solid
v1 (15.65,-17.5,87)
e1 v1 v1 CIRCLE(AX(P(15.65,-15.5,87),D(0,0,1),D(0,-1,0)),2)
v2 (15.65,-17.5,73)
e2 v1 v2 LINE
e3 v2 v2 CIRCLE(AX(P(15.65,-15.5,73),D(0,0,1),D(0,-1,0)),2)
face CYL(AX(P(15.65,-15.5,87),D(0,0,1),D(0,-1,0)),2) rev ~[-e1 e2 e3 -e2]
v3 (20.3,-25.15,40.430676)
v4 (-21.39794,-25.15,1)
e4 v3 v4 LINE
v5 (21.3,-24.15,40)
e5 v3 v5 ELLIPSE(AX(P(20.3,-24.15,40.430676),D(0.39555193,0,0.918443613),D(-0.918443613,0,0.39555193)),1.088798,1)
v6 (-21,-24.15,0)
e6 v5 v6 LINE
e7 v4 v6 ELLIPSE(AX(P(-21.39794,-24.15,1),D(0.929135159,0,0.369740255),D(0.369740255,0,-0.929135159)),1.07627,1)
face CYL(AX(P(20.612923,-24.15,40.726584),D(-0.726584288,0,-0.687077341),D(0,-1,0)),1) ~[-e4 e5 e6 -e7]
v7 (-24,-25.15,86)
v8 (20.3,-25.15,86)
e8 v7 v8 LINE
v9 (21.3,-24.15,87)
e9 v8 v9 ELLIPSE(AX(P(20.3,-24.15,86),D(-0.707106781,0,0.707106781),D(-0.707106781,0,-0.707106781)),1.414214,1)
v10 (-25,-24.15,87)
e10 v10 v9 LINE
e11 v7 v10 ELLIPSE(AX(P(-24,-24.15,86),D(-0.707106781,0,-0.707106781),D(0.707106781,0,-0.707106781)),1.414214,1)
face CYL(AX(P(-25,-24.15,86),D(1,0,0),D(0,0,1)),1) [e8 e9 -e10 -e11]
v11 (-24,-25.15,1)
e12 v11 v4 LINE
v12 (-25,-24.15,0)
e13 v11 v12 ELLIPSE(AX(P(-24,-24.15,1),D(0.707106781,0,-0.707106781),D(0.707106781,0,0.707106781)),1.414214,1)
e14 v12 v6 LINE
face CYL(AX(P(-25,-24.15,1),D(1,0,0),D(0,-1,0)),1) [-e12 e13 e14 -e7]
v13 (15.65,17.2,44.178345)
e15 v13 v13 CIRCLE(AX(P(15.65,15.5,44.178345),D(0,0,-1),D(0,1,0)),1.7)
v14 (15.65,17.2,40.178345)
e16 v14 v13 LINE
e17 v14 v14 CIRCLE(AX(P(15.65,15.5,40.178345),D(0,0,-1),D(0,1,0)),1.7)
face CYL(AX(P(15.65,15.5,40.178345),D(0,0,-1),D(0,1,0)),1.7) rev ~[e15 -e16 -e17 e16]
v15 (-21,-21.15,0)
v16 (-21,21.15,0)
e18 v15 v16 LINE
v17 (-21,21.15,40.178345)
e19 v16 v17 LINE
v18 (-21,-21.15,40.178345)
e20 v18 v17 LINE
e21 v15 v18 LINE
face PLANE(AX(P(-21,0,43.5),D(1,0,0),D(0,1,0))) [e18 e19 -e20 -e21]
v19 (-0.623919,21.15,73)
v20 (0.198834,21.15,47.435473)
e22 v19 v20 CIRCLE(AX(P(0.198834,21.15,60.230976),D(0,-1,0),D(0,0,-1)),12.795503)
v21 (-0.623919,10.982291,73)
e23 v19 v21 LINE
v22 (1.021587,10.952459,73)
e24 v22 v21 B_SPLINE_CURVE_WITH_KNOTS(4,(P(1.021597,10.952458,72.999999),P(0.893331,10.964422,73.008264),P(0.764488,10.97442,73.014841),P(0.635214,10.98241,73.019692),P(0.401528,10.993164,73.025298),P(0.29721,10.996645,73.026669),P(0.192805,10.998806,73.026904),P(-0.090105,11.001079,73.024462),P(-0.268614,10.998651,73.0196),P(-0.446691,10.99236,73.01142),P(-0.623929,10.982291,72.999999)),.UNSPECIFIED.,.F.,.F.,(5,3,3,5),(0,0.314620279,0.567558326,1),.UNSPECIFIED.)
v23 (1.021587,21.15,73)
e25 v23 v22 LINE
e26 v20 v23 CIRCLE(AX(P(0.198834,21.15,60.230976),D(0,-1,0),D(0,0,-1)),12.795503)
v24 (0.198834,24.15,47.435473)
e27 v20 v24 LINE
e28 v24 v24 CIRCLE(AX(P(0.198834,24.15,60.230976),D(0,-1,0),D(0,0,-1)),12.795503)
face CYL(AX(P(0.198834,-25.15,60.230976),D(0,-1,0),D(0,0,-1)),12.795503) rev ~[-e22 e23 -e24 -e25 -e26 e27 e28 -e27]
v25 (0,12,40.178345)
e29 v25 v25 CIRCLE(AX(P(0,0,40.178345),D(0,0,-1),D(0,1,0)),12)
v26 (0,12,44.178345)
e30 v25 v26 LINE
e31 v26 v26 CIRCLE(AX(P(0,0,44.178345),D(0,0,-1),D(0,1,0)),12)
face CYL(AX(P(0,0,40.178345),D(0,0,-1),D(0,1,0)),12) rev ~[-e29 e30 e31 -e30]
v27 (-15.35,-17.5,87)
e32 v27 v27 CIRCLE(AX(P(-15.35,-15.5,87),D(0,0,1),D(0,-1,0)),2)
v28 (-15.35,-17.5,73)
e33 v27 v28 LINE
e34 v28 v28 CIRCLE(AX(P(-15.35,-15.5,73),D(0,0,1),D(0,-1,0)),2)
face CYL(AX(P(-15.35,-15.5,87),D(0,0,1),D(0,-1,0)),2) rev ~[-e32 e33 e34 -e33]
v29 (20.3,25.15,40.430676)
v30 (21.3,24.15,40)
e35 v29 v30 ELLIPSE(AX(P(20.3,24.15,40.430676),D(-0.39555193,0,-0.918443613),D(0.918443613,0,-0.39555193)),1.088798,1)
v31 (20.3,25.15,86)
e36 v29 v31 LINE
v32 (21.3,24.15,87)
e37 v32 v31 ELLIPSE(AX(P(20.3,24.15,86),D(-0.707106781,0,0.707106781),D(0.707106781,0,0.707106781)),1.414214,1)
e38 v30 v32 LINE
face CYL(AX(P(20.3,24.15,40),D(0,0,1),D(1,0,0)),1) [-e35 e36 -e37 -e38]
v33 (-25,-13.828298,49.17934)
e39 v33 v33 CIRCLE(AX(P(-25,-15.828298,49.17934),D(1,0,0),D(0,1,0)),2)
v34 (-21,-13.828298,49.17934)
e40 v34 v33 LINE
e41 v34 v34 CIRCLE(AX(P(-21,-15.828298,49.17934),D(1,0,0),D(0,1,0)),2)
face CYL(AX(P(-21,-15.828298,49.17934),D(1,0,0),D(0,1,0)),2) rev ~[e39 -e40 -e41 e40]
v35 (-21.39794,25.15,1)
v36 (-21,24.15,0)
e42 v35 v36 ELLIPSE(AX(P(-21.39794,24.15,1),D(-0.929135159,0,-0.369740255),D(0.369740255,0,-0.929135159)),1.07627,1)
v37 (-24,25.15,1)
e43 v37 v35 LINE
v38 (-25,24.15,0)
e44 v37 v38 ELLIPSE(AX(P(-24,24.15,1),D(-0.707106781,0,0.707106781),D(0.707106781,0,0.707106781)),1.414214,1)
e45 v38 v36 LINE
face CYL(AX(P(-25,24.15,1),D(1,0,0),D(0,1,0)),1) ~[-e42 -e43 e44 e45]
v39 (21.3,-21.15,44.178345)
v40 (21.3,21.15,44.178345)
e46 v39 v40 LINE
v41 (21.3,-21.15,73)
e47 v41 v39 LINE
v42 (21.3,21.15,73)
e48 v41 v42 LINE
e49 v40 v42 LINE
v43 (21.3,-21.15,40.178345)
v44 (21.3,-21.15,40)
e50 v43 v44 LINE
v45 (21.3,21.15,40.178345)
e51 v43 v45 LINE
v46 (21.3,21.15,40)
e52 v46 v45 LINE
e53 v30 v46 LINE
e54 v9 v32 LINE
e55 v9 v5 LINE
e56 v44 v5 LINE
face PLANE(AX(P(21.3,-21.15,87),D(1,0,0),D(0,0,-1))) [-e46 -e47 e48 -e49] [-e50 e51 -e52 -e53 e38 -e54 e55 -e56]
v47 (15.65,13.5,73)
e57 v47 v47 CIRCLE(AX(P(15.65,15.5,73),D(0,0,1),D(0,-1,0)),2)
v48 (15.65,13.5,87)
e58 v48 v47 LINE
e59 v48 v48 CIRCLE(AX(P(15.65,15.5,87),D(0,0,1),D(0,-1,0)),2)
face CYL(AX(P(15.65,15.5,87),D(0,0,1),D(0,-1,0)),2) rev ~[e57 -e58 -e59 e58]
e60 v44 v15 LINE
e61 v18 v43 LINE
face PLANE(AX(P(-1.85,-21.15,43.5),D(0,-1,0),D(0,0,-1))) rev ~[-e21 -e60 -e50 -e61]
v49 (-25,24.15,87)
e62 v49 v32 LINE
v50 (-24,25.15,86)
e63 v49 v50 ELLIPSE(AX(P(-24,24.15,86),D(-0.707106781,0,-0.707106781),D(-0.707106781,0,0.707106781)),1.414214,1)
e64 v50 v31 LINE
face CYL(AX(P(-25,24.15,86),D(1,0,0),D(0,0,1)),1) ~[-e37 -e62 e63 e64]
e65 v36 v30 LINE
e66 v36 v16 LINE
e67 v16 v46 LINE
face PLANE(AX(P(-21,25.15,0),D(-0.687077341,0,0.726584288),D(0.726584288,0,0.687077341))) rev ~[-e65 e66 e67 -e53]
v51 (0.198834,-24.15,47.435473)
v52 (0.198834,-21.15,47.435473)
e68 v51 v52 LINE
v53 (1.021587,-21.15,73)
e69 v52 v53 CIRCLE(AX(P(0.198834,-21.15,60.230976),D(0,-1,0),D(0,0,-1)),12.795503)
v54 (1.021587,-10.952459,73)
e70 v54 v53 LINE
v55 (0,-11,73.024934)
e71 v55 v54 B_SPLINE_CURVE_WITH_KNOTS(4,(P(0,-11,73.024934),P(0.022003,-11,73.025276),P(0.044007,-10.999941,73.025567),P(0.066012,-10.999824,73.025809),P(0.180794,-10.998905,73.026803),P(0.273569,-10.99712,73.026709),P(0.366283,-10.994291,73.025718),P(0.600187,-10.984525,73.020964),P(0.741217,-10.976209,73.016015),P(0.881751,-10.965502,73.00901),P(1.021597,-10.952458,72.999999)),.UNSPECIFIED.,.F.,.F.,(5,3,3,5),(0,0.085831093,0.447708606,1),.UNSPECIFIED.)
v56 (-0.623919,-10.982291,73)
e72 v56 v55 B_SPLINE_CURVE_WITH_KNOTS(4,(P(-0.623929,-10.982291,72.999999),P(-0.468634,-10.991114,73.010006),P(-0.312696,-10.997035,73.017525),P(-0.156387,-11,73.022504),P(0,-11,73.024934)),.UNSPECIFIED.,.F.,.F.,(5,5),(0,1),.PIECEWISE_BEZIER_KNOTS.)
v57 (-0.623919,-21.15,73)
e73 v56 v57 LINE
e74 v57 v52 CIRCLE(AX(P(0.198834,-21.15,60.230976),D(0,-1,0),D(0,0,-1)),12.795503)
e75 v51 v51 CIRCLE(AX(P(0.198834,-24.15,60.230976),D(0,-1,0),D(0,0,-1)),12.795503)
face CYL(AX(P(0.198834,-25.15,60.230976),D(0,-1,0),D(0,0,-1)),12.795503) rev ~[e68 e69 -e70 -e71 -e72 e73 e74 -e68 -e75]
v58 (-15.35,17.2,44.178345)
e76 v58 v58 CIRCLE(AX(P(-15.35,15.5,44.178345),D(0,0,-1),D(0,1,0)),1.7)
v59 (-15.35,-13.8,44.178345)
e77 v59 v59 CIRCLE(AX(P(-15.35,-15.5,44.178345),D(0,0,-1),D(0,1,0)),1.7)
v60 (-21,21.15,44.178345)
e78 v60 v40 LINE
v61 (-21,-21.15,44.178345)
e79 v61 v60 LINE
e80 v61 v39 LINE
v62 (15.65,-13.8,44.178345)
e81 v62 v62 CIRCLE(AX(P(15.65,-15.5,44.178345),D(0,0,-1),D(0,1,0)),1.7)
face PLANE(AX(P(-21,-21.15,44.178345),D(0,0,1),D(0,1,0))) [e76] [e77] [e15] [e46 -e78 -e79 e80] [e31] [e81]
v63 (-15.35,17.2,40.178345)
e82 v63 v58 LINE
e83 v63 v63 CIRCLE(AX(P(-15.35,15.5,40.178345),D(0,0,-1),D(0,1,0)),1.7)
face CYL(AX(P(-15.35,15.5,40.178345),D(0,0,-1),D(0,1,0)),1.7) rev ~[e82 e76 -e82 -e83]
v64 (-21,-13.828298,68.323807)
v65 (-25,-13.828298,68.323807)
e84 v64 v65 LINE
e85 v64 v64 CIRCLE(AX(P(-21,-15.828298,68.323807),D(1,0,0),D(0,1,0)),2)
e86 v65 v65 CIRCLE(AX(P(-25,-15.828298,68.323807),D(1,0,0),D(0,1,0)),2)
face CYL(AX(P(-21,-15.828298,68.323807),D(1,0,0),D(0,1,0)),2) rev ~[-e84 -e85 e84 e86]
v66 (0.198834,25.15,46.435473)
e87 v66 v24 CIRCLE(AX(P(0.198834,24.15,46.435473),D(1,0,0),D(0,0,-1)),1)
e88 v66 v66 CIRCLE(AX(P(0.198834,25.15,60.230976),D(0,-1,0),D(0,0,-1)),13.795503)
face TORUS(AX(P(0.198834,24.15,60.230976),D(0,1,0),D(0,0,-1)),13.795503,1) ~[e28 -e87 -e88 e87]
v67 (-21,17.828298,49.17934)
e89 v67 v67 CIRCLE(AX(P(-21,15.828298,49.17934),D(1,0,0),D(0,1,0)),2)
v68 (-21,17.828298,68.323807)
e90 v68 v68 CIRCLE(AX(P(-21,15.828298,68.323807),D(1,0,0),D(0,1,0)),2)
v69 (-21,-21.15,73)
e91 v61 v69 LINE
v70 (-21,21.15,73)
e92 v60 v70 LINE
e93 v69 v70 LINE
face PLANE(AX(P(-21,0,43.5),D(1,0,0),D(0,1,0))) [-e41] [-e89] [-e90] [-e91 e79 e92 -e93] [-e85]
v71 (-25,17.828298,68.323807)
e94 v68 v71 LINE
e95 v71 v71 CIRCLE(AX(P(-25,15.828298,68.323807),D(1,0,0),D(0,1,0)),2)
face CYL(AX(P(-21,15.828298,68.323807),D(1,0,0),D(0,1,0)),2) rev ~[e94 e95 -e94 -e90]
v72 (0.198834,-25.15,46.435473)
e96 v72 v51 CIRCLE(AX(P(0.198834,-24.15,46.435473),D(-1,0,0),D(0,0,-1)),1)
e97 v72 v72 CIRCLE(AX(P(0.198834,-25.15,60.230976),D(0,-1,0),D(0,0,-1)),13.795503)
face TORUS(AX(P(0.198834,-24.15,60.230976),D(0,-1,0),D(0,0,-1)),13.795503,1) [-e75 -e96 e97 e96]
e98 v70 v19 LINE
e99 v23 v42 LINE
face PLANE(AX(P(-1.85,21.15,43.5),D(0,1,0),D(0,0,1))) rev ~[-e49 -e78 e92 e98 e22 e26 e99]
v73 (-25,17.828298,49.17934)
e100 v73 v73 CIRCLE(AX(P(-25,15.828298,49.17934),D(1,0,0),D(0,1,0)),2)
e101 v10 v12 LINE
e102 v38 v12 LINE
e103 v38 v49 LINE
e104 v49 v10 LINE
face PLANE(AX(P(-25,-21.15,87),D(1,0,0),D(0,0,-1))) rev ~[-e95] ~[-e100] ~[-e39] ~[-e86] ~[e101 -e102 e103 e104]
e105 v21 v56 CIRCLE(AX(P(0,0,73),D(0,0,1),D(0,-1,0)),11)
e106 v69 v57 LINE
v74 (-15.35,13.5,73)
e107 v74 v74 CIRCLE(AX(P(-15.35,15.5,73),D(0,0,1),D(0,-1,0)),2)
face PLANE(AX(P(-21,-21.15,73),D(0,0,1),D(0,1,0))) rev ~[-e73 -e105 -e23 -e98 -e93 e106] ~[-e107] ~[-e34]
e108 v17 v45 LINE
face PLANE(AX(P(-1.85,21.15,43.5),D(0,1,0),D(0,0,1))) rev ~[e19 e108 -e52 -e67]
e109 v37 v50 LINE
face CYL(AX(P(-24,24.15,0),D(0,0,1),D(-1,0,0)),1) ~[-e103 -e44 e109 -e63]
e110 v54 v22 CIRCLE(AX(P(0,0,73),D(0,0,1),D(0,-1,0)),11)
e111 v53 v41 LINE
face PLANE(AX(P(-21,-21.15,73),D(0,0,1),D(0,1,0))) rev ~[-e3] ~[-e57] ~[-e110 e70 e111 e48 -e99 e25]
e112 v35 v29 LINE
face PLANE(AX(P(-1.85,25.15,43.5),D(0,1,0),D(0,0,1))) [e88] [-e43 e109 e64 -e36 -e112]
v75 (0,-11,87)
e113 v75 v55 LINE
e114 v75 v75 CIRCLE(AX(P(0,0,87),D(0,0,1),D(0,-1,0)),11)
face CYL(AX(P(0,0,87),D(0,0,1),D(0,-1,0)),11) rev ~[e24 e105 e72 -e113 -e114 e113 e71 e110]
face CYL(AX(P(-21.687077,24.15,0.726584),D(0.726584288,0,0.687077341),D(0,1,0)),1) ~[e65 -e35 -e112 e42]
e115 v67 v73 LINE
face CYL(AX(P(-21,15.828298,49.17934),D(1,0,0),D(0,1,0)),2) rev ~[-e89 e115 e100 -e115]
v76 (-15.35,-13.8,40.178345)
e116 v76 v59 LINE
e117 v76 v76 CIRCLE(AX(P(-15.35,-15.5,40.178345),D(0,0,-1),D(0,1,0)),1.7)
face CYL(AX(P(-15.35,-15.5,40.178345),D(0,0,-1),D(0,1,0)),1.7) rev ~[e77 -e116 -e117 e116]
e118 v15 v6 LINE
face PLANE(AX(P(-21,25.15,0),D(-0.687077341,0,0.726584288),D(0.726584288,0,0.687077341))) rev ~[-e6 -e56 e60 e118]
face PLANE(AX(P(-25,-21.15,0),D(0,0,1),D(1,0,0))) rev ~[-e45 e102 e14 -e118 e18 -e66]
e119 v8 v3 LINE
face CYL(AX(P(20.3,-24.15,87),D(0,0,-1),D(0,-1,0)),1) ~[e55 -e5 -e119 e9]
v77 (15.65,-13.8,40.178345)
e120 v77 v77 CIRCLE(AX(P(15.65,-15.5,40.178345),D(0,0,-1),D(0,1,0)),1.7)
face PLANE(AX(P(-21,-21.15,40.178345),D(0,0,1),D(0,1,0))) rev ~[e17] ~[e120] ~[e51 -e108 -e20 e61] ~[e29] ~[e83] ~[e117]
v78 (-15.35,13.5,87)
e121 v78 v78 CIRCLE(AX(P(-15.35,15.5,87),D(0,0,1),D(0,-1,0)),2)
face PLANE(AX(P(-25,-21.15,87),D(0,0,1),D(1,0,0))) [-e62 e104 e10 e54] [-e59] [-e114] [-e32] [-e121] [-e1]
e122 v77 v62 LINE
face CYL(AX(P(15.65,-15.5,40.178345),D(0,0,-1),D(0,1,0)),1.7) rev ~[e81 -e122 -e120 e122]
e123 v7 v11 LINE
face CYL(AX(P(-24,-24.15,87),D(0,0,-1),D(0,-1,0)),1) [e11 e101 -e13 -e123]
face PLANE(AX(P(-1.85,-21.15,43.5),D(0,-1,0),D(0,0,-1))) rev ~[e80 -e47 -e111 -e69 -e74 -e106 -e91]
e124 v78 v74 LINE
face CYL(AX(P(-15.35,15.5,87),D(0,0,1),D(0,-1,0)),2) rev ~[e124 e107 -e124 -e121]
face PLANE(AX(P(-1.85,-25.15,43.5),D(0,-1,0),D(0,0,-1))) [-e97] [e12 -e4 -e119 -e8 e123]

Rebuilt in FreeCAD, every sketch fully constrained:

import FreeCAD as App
import Part
import Sketcher

V = App.Vector
Q = App.Units.Quantity


def edges_at(feature, points):
    """Names of the edges that pass closest to the given points."""
    edges = feature.Shape.Edges
    near = lambda p: min(range(len(edges)), key=lambda i: edges[i].distToShape(Part.Vertex(*p))[0])
    return sorted({f"Edge{near(p) + 1}" for p in points})


def add_polygon(sketch, points):
    """Adds a closed chain of lines whose ends are joined by coincident constraints."""
    first, n = sketch.GeometryCount, len(points)
    for a, b in zip(points, points[1:] + points[:1]):
        sketch.addGeometry(Part.LineSegment(App.Vector(*a, 0), App.Vector(*b, 0)), False)
    for i in range(n):
        sketch.addConstraint(Sketcher.Constraint("Coincident", first + i, 2, first + (i + 1) % n, 1))

doc = App.newDocument("Part")
body = doc.addObject("PartDesign::Body", "Body")

sketch1 = body.newObject("Sketcher::SketchObject", "Sketch")
sketch1.AttachmentSupport = (doc.getObject("YZ_Plane"), [""])
sketch1.MapMode = "FlatFace"
add_polygon(sketch1, [(-21, 87), (-21, 0), (21, 0), (21, 87)])
sketch1.addConstraint([
    Sketcher.Constraint("Vertical", 0),
    Sketcher.Constraint("Horizontal", 1),
    Sketcher.Constraint("Vertical", 2),
    Sketcher.Constraint("Horizontal", 3),
    Sketcher.Constraint("Symmetric", 0, 2, 1, 2, -1, 1),
    Sketcher.Constraint("DistanceY", 0, 2, 0, 1, Q("87 mm")),
    Sketcher.Constraint("DistanceX", 1, 1, 1, 2, Q("42.3 mm")),
])
pad1 = body.newObject("PartDesign::Pad", "Pad")
pad1.Profile = sketch1
pad1.Length = 4

sketch2 = body.newObject("Sketcher::SketchObject", "Sketch001")
sketch2.AttachmentSupport = (doc.getObject("YZ_Plane"), [""])
sketch2.MapMode = "FlatFace"
sketch2.AttachmentOffset = App.Placement(V(0, 0, 4), App.Rotation())
add_polygon(sketch2, [(-21.1, 44.2), (-21.1, 40.2), (21.1, 40.2), (21.1, 44.2)])
add_polygon(sketch2, [(-21.1, 87), (-21.1, 73), (21.1, 73), (21.1, 87)])
sketch2.addConstraint([
    Sketcher.Constraint("Vertical", 0),
    Sketcher.Constraint("Horizontal", 1),
    Sketcher.Constraint("Vertical", 2),
    Sketcher.Constraint("Horizontal", 3),
    Sketcher.Constraint("Vertical", 4),
    Sketcher.Constraint("Horizontal", 5),
    Sketcher.Constraint("Vertical", 6),
    Sketcher.Constraint("Horizontal", 7),
    Sketcher.Constraint("Vertical", 3, 2, 4, 2),
    Sketcher.Constraint("Vertical", 2, 2, 5, 2),
    Sketcher.Constraint("DistanceY", 0, 2, 0, 1, Q("4 mm")),
    Sketcher.Constraint("DistanceY", 4, 2, 4, 1, Q("14 mm")),
    Sketcher.Constraint("DistanceX", 1, 1, 1, 2, Q("42.3 mm")),
    Sketcher.Constraint("DistanceY", -1, 1, 4, 2, Q("73 mm")),
    Sketcher.Constraint("DistanceX", 0, 2, -1, 1, Q("21.15 mm")),
    Sketcher.Constraint("DistanceY", -1, 1, 0, 2, Q("40.178345 mm")),
])
pad2 = body.newObject("PartDesign::Pad", "Pad001")
pad2.Profile = sketch2
pad2.Length = 42.3

sketch3 = body.newObject("Sketcher::SketchObject", "Sketch002")
sketch3.AttachmentSupport = (doc.getObject("XY_Plane"), [""])
sketch3.MapMode = "FlatFace"
sketch3.AttachmentOffset = App.Placement(V(0, 0, 87), App.Rotation())
sketch3.addGeometry(Part.Circle(V(25, 0, 0), V(0, 0, 1), 11), False)
sketch3.addConstraint([
    Sketcher.Constraint("PointOnObject", 0, 3, -1),
    Sketcher.Constraint("Diameter", 0, Q("22 mm")),
    Sketcher.Constraint("DistanceX", -1, 1, 0, 3, Q("25 mm")),
])
pocket1 = body.newObject("PartDesign::Pocket", "Pocket")
pocket1.Profile = sketch3
pocket1.Length = 14

sketch4 = body.newObject("Sketcher::SketchObject", "Sketch003")
sketch4.AttachmentSupport = (doc.getObject("XY_Plane"), [""])
sketch4.MapMode = "FlatFace"
sketch4.AttachmentOffset = App.Placement(V(0, 0, 40.178345), App.Rotation())
sketch4.addGeometry([
    Part.Circle(V(40.6, -15.5, 0), V(0, 0, 1), 1.7),
    Part.Circle(V(40.6, 15.5, 0), V(0, 0, 1), 1.7),
    Part.Circle(V(9.7, 15.5, 0), V(0, 0, 1), 1.7),
    Part.Circle(V(9.7, -15.5, 0), V(0, 0, 1), 1.7),
    Part.Circle(V(25, 0, 0), V(0, 0, 1), 12),
], False)
sketch4.addConstraint([
    Sketcher.Constraint("Equal", 0, 1),
    Sketcher.Constraint("Equal", 1, 2),
    Sketcher.Constraint("Equal", 2, 3),
    Sketcher.Constraint("Symmetric", 0, 3, 1, 3, -1),
    Sketcher.Constraint("Symmetric", 2, 3, 3, 3, -1),
    Sketcher.Constraint("PointOnObject", 4, 3, -1),
    Sketcher.Constraint("Horizontal", 1, 3, 2, 3),
    Sketcher.Constraint("Diameter", 4, Q("24 mm")),
    Sketcher.Constraint("Diameter", 0, Q("3.4 mm")),
    Sketcher.Constraint("DistanceX", -1, 1, 4, 3, Q("25 mm")),
    Sketcher.Constraint("DistanceY", 0, 3, 1, 3, Q("31 mm")),
    Sketcher.Constraint("DistanceX", 2, 3, 1, 3, Q("31 mm")),
    Sketcher.Constraint("DistanceX", -1, 1, 0, 3, Q("40.65 mm")),
])
pocket2 = body.newObject("PartDesign::Pocket", "Pocket001")
pocket2.Profile = sketch4
pocket2.Length = 5
pocket2.Reversed = True

sketch5 = body.newObject("Sketcher::SketchObject", "Sketch004")
sketch5.AttachmentSupport = (doc.getObject("XZ_Plane"), [""])
sketch5.MapMode = "FlatFace"
sketch5.AttachmentOffset = App.Placement(V(0, 0, -21.15), App.Rotation())
add_polygon(sketch5, [(46, 0), (0, 0), (0, 87), (46, 87)])
sketch5.addConstraint([
    Sketcher.Constraint("Horizontal", 0),
    Sketcher.Constraint("Vertical", 1),
    Sketcher.Constraint("Horizontal", 2),
    Sketcher.Constraint("Vertical", 3),
    Sketcher.Constraint("Coincident", 0, 2, -1, 1),
    Sketcher.Constraint("DistanceY", 1, 1, 1, 2, Q("87 mm")),
    Sketcher.Constraint("DistanceX", 0, 2, 0, 1, Q("46.3 mm")),
])
pad3 = body.newObject("PartDesign::Pad", "Pad002")
pad3.Profile = sketch5
pad3.Length = 4
pad3.Reversed = True

sketch6 = body.newObject("Sketcher::SketchObject", "Sketch005")
sketch6.AttachmentSupport = (doc.getObject("XZ_Plane"), [""])
sketch6.MapMode = "FlatFace"
sketch6.AttachmentOffset = App.Placement(V(0, 0, 21.15), App.Rotation())
add_polygon(sketch6, [(46, 87), (0, 87), (0, 0), (46, 0)])
sketch6.addConstraint([
    Sketcher.Constraint("Horizontal", 0),
    Sketcher.Constraint("Vertical", 1),
    Sketcher.Constraint("Horizontal", 2),
    Sketcher.Constraint("Vertical", 3),
    Sketcher.Constraint("Coincident", 1, 2, -1, 1),
    Sketcher.Constraint("DistanceY", 1, 2, 1, 1, Q("87 mm")),
    Sketcher.Constraint("DistanceX", 0, 2, 0, 1, Q("46.3 mm")),
])
pad4 = body.newObject("PartDesign::Pad", "Pad003")
pad4.Profile = sketch6
pad4.Length = 4

sketch7 = body.newObject("Sketcher::SketchObject", "Sketch006")
sketch7.AttachmentSupport = (doc.getObject("XY_Plane"), [""])
sketch7.MapMode = "FlatFace"
sketch7.AttachmentOffset = App.Placement(V(0, 0, 87), App.Rotation())
sketch7.addGeometry([
    Part.Circle(V(40.6, 15.5, 0), V(0, 0, 1), 2),
    Part.Circle(V(40.6, -15.5, 0), V(0, 0, 1), 2),
    Part.Circle(V(9.7, -15.5, 0), V(0, 0, 1), 2),
    Part.Circle(V(9.7, 15.5, 0), V(0, 0, 1), 2),
], False)
sketch7.addConstraint([
    Sketcher.Constraint("Equal", 0, 1),
    Sketcher.Constraint("Equal", 1, 2),
    Sketcher.Constraint("Equal", 2, 3),
    Sketcher.Constraint("Symmetric", 0, 3, 1, 3, -1),
    Sketcher.Constraint("Symmetric", 2, 3, 3, 3, -1),
    Sketcher.Constraint("Horizontal", 1, 3, 2, 3),
    Sketcher.Constraint("Diameter", 0, Q("4 mm")),
    Sketcher.Constraint("DistanceY", 1, 3, 0, 3, Q("31 mm")),
    Sketcher.Constraint("DistanceX", 2, 3, 1, 3, Q("31 mm")),
    Sketcher.Constraint("DistanceX", -1, 1, 0, 3, Q("40.65 mm")),
])
pocket3 = body.newObject("PartDesign::Pocket", "Pocket002")
pocket3.Profile = sketch7
pocket3.Length = 14

sketch8 = body.newObject("Sketcher::SketchObject", "Sketch007")
sketch8.AttachmentSupport = (doc.getObject("XZ_Plane"), [""])
sketch8.MapMode = "FlatFace"
sketch8.AttachmentOffset = App.Placement(V(0, 0, -25.15), App.Rotation())
add_polygon(sketch8, [(4, 0), (46, 40), (46, 0)])
sketch8.addConstraint([
    Sketcher.Constraint("Vertical", 1),
    Sketcher.Constraint("Horizontal", 2),
    Sketcher.Constraint("PointOnObject", 1, 2, -1),
    Sketcher.Constraint("DistanceY", 1, 2, 1, 1, Q("40 mm")),
    Sketcher.Constraint("DistanceX", 2, 2, 2, 1, Q("42.3 mm")),
    Sketcher.Constraint("DistanceX", -1, 1, 2, 2, Q("4 mm")),
])
pocket4 = body.newObject("PartDesign::Pocket", "Pocket003")
pocket4.Profile = sketch8
pocket4.Length = 51
pocket4.Reversed = True

sketch9 = body.newObject("Sketcher::SketchObject", "Sketch008")
sketch9.AttachmentSupport = (doc.getObject("XZ_Plane"), [""])
sketch9.MapMode = "FlatFace"
sketch9.AttachmentOffset = App.Placement(V(0, 0, 25.15), App.Rotation())
sketch9.addGeometry(Part.Circle(V(25, 60, 0), V(0, 0, 1), 13), False)
sketch9.addConstraint([
    Sketcher.Constraint("Diameter", 0, Q("25.591006 mm")),
    Sketcher.Constraint("DistanceX", -1, 1, 0, 3, Q("25.198834 mm")),
    Sketcher.Constraint("DistanceY", -1, 1, 0, 3, Q("60.230976 mm")),
])
pocket5 = body.newObject("PartDesign::Pocket", "Pocket004")
pocket5.Profile = sketch9
pocket5.Length = 51

sketch10 = body.newObject("Sketcher::SketchObject", "Sketch009")
sketch10.AttachmentSupport = (doc.getObject("YZ_Plane"), [""])
sketch10.MapMode = "FlatFace"
sketch10.AttachmentOffset = App.Placement(V(0, 0, 4), App.Rotation())
sketch10.addGeometry([
    Part.Circle(V(-15.8, 68.3, 0), V(0, 0, 1), 2),
    Part.Circle(V(15.8, 68.3, 0), V(0, 0, 1), 2),
    Part.Circle(V(-15.8, 49.2, 0), V(0, 0, 1), 2),
    Part.Circle(V(15.8, 49.2, 0), V(0, 0, 1), 2),
], False)
sketch10.addConstraint([
    Sketcher.Constraint("Equal", 0, 1),
    Sketcher.Constraint("Equal", 1, 2),
    Sketcher.Constraint("Equal", 2, 3),
    Sketcher.Constraint("Symmetric", 0, 3, 1, 3, -2),
    Sketcher.Constraint("Symmetric", 2, 3, 3, 3, -2),
    Sketcher.Constraint("Vertical", 0, 3, 2, 3),
    Sketcher.Constraint("Diameter", 0, Q("4 mm")),
    Sketcher.Constraint("DistanceY", -1, 1, 2, 3, Q("49.17934 mm")),
    Sketcher.Constraint("DistanceX", 0, 3, -1, 1, Q("15.828298 mm")),
    Sketcher.Constraint("DistanceY", -1, 1, 0, 3, Q("68.323807 mm")),
])
pocket6 = body.newObject("PartDesign::Pocket", "Pocket005")
pocket6.Profile = sketch10
pocket6.Length = 5
doc.recompute()

fillet = body.newObject("PartDesign::Fillet", "Fillet")
fillet.Base = (pocket6, edges_at(pocket6, [
    (2, -25.15, 0),
    (25.15, -25.15, 20),
    (0, -25.15, 43.5),
    (46.3, -25.15, 63.5),
    (23.15, -25.15, 87),
    (25.199, -25.15, 73.026),
    (2, 25.15, 0),
    (25.15, 25.15, 20),
    (0, 25.15, 43.5),
    (46.3, 25.15, 63.5),
    (23.15, 25.15, 87),
    (25.199, 25.15, 73.026),
]))
fillet.Radius = 1
body2 = doc.addObject("PartDesign::Body", "Body001")
doc.recompute()

body.Placement = App.Placement(V(-25, 0, 0), App.Rotation(V(0, 0, 1), 0))
boolean = body2.newObject("PartDesign::Boolean", "Boolean")
boolean.Type = "Fuse"
boolean.addObjects([body])

doc.recompute()
